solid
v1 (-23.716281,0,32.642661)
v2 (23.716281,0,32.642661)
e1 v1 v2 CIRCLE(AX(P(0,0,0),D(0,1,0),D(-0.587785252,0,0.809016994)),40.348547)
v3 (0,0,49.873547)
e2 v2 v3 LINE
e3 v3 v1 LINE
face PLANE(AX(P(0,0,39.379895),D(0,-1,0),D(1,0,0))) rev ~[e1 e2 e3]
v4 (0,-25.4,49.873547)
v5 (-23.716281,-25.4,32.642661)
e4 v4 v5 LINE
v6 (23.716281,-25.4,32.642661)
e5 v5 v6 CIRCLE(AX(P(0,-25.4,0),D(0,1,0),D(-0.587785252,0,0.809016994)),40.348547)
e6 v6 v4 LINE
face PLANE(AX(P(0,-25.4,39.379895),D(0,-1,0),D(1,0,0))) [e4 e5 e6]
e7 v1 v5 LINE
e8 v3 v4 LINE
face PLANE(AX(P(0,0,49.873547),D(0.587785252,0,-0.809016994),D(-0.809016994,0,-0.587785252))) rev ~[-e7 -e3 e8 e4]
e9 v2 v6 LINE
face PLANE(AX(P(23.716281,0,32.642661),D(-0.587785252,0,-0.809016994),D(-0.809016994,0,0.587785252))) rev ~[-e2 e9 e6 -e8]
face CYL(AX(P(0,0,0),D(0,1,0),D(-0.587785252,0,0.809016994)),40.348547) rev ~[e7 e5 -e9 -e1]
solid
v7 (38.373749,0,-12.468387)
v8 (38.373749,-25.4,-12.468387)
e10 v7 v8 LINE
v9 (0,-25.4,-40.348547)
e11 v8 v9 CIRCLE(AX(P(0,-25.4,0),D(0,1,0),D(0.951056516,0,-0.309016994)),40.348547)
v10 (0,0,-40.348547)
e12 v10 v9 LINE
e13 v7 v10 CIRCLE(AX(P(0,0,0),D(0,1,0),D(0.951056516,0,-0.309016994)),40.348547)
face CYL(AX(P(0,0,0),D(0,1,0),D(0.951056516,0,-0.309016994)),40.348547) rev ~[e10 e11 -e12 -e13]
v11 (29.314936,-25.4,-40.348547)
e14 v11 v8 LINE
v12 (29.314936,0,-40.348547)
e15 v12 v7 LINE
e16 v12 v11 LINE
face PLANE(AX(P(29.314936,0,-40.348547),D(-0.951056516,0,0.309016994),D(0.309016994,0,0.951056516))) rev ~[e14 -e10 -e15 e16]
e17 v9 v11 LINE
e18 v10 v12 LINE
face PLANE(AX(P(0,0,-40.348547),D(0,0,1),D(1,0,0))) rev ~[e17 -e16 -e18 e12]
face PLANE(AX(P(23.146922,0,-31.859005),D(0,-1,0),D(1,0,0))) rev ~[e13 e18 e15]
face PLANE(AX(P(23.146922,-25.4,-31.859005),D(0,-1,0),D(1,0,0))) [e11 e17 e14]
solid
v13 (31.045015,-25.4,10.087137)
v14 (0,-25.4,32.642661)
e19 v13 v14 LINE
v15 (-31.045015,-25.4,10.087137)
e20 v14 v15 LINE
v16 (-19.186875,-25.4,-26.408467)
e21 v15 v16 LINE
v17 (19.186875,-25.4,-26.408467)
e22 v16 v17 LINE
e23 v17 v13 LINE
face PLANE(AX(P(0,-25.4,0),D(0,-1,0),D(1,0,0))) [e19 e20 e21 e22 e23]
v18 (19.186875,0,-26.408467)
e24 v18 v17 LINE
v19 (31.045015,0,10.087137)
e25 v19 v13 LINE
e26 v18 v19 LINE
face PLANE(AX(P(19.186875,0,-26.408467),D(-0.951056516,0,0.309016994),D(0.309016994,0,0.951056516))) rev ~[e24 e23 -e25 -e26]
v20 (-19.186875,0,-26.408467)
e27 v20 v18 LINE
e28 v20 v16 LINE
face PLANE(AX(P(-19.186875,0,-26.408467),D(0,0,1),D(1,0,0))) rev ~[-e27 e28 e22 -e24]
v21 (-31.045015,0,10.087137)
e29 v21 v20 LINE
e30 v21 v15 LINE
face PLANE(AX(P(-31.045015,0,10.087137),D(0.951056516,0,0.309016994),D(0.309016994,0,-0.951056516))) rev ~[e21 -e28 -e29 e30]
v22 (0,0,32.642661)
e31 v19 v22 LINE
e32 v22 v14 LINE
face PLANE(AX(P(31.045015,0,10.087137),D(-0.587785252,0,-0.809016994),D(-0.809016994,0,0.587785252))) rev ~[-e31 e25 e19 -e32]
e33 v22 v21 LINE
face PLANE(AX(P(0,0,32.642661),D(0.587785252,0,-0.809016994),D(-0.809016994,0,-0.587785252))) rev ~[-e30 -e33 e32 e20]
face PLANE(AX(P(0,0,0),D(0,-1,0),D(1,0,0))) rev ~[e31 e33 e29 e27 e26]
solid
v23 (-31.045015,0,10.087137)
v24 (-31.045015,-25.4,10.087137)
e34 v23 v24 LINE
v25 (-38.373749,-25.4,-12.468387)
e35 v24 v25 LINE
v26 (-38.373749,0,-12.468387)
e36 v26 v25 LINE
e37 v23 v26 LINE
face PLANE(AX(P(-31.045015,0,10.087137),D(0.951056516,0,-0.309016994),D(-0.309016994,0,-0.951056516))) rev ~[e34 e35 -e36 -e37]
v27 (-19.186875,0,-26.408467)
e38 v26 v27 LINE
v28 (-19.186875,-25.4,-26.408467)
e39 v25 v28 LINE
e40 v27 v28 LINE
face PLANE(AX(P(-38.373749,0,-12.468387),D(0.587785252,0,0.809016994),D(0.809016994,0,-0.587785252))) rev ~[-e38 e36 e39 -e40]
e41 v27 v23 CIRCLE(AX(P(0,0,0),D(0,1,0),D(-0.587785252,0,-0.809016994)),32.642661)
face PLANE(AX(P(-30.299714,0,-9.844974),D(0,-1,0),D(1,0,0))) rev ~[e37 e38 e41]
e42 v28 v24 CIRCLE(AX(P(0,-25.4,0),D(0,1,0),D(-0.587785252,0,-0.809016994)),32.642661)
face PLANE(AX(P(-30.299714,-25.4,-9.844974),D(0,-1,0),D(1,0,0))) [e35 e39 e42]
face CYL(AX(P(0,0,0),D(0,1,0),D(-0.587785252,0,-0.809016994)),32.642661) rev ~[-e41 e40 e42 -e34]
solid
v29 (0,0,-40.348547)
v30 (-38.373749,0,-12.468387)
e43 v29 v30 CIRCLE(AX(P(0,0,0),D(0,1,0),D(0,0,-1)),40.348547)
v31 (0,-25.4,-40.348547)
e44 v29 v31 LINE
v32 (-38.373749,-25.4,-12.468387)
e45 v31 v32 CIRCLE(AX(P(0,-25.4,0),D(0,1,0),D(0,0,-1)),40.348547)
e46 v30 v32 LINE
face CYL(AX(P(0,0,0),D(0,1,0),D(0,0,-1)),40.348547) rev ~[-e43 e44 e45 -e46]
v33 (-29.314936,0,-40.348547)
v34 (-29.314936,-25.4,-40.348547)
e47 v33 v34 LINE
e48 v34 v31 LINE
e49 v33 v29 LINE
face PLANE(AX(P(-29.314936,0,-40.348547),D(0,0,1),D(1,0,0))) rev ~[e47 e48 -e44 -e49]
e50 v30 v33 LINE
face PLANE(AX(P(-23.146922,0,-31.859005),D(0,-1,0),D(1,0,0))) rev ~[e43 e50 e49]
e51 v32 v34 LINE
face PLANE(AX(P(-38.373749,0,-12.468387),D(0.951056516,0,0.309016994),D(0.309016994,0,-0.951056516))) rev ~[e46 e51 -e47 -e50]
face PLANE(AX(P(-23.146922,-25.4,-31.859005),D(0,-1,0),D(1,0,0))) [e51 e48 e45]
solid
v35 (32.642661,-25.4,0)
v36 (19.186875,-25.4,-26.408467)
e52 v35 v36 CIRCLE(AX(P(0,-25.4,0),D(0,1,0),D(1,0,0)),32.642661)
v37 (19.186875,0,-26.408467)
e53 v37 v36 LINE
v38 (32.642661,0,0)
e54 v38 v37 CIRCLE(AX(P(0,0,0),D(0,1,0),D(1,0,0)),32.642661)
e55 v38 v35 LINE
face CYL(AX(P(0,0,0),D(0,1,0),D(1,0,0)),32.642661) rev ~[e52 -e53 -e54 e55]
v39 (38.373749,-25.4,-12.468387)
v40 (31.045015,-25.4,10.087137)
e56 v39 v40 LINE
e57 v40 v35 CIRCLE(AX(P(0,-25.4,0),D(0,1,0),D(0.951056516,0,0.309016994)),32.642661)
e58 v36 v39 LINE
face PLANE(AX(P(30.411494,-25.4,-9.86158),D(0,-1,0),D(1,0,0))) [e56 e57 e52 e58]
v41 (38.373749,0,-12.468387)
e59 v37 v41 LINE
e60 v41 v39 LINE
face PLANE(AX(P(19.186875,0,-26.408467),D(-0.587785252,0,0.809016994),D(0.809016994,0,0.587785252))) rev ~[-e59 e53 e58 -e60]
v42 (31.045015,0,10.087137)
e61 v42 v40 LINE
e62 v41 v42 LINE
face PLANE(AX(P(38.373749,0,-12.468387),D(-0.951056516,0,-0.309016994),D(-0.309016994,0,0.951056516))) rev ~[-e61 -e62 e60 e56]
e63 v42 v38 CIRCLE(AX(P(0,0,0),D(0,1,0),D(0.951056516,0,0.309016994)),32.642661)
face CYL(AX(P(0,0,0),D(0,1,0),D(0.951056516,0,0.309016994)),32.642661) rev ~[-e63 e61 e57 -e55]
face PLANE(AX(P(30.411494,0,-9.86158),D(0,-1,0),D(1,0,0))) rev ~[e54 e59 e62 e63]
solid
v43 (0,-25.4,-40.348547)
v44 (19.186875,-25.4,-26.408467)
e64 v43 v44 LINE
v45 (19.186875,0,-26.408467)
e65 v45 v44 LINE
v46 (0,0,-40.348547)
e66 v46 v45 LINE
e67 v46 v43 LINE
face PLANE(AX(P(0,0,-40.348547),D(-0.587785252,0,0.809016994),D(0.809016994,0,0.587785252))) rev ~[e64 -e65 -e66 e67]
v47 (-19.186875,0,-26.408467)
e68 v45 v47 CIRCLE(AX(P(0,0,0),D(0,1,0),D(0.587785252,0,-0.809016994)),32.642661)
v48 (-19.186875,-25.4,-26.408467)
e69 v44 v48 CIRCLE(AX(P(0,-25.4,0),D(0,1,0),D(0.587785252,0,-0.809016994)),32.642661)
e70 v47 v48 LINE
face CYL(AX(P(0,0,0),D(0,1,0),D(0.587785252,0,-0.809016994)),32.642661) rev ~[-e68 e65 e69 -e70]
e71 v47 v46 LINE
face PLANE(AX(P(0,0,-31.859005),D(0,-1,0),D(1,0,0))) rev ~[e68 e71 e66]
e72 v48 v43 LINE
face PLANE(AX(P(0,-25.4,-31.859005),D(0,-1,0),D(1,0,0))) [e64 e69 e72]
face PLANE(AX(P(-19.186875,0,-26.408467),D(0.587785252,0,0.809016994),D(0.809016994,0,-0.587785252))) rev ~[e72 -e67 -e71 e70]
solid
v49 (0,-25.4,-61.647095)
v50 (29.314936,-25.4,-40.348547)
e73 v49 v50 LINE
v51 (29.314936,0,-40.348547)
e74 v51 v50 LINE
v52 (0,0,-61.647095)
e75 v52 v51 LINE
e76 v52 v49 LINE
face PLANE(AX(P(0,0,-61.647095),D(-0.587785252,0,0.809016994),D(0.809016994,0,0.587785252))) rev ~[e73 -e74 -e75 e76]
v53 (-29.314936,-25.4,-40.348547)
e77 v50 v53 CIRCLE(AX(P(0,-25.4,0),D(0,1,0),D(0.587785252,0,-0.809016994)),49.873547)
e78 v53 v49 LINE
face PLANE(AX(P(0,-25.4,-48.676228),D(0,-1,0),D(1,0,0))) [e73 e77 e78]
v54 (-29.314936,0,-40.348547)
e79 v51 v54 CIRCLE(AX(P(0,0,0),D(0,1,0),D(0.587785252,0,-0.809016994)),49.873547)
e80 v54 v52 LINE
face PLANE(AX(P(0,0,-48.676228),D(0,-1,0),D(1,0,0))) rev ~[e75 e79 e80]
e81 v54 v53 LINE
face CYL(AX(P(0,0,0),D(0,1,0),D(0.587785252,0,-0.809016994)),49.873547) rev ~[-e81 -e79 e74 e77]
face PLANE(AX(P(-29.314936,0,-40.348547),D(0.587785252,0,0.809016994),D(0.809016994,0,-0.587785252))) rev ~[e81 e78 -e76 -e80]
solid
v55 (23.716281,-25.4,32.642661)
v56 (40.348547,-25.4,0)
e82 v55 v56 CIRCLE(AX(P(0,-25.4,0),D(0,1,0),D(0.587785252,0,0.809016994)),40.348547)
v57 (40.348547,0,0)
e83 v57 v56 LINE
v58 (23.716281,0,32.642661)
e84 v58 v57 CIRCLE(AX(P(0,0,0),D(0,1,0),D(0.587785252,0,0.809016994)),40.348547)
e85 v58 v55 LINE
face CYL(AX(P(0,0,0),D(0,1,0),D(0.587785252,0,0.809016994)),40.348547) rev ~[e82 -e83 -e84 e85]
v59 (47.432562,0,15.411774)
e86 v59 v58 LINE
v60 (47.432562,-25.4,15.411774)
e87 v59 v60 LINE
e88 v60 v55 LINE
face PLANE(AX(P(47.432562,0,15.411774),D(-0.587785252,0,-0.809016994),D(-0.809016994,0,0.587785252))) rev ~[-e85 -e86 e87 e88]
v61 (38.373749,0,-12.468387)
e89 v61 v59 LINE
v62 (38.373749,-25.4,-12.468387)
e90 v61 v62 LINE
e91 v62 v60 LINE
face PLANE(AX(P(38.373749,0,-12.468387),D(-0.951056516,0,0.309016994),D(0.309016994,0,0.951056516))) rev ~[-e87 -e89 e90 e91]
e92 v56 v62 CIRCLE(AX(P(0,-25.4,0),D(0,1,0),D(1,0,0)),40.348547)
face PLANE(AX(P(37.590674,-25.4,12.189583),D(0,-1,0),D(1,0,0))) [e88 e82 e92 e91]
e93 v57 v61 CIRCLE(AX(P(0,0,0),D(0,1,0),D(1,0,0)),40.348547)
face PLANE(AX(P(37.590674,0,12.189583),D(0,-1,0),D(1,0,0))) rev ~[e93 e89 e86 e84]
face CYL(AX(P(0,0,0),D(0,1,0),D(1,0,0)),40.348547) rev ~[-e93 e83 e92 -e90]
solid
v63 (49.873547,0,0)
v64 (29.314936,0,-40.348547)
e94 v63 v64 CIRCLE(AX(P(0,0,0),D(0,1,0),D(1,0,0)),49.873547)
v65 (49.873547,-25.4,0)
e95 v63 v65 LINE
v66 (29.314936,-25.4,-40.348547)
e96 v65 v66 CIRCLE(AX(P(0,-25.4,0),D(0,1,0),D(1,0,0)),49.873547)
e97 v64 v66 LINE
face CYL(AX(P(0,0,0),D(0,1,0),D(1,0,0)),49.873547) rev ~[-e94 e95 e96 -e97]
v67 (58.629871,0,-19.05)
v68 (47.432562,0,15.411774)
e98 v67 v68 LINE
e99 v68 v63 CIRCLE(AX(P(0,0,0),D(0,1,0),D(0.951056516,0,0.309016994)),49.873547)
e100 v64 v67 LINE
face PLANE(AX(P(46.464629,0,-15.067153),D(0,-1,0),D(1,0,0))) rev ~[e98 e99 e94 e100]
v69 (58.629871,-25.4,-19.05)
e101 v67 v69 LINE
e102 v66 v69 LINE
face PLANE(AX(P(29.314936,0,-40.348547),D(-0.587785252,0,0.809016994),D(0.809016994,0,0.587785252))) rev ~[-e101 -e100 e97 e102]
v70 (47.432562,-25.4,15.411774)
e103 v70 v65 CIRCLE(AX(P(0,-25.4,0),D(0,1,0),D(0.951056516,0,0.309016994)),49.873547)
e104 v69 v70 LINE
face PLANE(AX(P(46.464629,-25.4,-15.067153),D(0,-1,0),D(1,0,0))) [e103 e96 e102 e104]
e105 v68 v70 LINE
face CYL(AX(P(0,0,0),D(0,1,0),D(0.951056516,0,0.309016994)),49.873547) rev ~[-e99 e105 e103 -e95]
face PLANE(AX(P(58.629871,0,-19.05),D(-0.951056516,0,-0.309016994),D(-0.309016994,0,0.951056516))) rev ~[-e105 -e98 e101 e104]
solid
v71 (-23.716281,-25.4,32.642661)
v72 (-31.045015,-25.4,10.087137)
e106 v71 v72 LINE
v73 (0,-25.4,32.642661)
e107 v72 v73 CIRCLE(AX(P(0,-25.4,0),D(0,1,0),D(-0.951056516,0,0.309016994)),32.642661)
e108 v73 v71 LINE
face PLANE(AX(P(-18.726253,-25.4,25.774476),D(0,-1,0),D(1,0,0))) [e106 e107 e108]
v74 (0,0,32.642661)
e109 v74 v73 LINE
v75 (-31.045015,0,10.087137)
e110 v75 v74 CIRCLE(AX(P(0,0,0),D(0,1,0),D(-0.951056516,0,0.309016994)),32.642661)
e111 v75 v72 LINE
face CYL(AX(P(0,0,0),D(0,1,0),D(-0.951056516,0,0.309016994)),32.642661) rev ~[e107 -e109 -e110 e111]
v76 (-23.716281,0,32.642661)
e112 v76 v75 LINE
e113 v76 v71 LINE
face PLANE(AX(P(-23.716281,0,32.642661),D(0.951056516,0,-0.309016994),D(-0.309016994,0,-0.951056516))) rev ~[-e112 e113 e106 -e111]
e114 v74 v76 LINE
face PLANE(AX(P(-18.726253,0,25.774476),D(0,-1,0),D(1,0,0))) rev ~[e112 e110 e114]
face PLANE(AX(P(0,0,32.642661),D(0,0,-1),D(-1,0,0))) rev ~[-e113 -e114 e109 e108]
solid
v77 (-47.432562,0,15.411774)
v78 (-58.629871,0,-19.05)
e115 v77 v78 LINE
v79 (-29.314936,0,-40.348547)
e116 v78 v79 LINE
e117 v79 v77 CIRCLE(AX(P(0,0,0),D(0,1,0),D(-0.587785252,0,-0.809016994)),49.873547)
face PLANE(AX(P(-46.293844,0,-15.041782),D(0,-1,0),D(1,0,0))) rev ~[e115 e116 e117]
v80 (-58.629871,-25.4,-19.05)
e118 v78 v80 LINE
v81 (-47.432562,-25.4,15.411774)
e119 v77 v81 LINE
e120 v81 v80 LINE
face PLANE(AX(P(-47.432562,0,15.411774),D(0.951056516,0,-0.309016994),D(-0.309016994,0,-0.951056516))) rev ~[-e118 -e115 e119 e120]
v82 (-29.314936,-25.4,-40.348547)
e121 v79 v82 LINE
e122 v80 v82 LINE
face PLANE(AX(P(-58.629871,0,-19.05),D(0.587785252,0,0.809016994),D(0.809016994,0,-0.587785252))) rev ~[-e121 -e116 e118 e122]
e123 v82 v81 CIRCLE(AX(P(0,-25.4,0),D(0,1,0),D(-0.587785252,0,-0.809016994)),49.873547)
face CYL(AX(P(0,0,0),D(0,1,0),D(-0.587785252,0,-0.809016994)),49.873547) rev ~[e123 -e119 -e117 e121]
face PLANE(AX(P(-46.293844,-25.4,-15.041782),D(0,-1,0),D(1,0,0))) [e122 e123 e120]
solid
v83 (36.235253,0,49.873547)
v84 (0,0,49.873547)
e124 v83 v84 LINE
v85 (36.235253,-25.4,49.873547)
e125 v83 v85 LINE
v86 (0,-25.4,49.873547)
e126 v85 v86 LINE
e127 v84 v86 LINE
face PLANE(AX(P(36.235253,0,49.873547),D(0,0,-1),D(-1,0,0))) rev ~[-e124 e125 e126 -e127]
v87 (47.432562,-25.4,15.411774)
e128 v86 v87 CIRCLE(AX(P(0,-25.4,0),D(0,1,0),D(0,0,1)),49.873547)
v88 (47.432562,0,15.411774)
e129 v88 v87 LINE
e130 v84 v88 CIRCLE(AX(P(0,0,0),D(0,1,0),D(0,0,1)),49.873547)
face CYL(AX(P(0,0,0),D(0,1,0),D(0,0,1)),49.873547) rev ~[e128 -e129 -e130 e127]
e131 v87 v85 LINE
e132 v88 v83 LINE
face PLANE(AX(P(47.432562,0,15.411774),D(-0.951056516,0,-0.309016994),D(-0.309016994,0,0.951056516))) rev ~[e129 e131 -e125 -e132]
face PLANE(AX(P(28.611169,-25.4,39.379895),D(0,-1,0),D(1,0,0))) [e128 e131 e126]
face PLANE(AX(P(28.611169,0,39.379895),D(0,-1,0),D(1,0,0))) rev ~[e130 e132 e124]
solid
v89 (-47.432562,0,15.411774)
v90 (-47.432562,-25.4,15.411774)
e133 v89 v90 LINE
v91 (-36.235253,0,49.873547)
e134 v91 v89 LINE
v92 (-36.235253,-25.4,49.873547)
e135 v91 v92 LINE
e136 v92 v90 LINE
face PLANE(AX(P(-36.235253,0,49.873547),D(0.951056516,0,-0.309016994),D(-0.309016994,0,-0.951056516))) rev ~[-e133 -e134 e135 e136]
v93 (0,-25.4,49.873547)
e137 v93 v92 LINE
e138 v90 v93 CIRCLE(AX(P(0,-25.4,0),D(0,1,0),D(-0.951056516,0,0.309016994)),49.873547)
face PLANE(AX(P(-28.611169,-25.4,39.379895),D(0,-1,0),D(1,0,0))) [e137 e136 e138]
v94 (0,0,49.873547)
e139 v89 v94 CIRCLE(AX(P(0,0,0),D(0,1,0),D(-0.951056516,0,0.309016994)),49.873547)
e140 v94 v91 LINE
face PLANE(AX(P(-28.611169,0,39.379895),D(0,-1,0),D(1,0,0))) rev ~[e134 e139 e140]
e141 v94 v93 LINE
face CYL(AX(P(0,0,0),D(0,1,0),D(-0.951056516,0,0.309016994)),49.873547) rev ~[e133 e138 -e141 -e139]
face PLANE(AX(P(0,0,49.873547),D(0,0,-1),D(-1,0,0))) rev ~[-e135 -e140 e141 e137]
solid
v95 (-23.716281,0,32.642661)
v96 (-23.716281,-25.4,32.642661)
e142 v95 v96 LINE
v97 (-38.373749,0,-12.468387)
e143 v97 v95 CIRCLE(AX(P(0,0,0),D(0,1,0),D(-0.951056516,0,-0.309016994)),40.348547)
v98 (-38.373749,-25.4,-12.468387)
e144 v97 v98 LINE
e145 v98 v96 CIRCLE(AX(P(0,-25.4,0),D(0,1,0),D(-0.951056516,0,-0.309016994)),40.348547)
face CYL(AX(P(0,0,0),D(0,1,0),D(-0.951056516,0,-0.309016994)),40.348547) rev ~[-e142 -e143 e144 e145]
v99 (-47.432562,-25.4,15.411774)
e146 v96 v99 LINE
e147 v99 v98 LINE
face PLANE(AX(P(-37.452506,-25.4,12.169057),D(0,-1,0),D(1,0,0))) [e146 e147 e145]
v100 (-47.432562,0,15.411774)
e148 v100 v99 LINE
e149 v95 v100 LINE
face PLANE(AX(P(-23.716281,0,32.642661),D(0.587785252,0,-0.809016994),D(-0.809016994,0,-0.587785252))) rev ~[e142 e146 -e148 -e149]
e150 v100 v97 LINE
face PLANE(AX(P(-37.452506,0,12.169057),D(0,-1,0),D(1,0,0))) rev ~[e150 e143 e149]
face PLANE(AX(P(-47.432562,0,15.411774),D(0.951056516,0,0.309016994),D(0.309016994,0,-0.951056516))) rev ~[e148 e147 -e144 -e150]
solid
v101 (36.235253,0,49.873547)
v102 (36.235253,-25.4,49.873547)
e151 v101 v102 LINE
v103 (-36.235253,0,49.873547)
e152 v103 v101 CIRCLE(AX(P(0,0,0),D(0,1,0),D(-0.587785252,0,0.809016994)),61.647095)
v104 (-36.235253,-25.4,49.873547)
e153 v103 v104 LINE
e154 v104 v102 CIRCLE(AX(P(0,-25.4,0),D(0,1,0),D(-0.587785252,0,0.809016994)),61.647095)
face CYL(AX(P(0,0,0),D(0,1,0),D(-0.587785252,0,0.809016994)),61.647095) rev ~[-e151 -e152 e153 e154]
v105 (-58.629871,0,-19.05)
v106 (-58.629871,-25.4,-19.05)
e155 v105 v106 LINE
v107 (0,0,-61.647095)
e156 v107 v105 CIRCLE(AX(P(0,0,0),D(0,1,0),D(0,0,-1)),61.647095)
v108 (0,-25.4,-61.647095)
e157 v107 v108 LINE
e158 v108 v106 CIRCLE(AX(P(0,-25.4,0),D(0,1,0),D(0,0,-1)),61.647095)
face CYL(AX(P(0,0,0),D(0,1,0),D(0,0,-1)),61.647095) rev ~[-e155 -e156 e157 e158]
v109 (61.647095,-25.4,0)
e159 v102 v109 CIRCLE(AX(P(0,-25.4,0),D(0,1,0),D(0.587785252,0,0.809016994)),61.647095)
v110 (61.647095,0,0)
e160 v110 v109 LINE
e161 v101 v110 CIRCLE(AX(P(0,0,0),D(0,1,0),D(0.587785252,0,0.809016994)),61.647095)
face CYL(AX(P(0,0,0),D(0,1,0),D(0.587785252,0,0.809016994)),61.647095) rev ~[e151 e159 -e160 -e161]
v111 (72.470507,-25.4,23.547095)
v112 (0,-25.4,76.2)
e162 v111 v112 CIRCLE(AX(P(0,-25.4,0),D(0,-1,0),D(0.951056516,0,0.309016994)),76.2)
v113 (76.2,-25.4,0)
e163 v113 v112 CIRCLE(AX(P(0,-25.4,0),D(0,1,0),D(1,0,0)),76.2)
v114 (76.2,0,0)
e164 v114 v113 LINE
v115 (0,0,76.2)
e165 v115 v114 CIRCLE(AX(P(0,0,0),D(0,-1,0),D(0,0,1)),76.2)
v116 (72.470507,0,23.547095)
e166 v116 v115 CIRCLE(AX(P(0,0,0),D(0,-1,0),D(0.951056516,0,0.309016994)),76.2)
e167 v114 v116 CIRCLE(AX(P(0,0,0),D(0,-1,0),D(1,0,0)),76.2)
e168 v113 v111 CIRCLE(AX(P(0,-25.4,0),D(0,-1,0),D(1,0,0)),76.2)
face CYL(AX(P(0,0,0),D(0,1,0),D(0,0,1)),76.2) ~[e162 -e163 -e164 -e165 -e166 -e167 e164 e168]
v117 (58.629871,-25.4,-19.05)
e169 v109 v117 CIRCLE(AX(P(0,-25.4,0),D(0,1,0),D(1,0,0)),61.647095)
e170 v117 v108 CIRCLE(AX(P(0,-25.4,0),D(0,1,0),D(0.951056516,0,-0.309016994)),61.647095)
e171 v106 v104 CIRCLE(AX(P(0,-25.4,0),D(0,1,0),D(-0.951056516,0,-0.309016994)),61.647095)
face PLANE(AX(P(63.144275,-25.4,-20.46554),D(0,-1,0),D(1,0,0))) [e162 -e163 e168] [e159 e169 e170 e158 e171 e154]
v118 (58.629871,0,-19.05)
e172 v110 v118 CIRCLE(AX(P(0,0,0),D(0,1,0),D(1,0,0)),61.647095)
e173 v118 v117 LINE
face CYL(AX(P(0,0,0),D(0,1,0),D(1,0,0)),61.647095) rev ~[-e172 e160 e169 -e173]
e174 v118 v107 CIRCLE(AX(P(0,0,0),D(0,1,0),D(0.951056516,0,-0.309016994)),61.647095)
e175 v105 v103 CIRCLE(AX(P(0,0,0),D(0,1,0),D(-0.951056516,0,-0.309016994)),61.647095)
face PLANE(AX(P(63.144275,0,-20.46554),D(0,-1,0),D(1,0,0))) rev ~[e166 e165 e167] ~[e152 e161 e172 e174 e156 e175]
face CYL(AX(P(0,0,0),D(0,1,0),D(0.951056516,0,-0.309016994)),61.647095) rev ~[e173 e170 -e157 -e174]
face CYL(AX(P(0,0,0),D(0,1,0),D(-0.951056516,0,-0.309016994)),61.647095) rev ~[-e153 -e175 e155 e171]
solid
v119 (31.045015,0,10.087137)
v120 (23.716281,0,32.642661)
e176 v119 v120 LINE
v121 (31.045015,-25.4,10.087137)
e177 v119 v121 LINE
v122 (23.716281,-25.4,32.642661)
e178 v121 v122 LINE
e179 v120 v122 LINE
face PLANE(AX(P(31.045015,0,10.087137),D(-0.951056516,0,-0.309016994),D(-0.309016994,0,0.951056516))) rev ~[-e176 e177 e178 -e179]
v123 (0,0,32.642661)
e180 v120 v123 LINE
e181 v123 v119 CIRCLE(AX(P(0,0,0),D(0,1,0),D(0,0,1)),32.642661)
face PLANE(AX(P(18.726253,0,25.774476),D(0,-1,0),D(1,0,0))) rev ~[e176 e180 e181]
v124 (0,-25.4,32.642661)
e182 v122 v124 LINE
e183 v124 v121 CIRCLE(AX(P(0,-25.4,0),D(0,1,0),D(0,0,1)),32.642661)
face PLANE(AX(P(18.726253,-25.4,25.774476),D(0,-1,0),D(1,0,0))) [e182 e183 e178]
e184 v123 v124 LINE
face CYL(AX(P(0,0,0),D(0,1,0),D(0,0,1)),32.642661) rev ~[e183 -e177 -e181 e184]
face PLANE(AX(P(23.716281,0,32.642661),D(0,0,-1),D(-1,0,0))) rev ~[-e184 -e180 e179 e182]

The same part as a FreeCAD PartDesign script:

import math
import FreeCAD as App
import Part
import Sketcher
Q = App.Units.Quantity

doc = App.newDocument("Part")
body = doc.addObject("PartDesign::Body", "Body")

# Sketch on XZ plane
sketch1 = doc.addObject("Sketcher::SketchObject", "Sketch")
body.addObject(sketch1)
sketch1.AttachmentSupport = (doc.XZ_Plane, [""])
sketch1.MapMode = "FlatFace"
sketch1.addGeometry(Part.ArcOfCircle(Part.Circle(App.Vector(0, 0, 0), App.Vector(0, 0, 1), 76), math.radians(90), math.radians(234)), False)
sketch1.addGeometry(Part.ArcOfCircle(Part.Circle(App.Vector(0, 0, 0), App.Vector(0, 0, 1), 76), math.radians(-126), math.radians(0)), False)
sketch1.addGeometry(Part.ArcOfCircle(Part.Circle(App.Vector(0, 0, 0), App.Vector(0, 0, 1), 76), math.radians(0), math.radians(18)), False)
sketch1.addGeometry(Part.ArcOfCircle(Part.Circle(App.Vector(0, 0, 0), App.Vector(0, 0, 1), 76), math.radians(18), math.radians(90)), False)
sketch1.addGeometry(Part.ArcOfCircle(Part.Circle(App.Vector(0, 0, 0), App.Vector(0, 0, 1), 62), math.radians(-162), math.radians(-90)), False)
sketch1.addGeometry(Part.ArcOfCircle(Part.Circle(App.Vector(0, 0, 0), App.Vector(0, 0, 1), 62), math.radians(126), math.radians(198)), False)
sketch1.addGeometry(Part.ArcOfCircle(Part.Circle(App.Vector(0, 0, 0), App.Vector(0, 0, 1), 62), math.radians(54), math.radians(126)), False)
sketch1.addGeometry(Part.ArcOfCircle(Part.Circle(App.Vector(0, 0, 0), App.Vector(0, 0, 1), 62), math.radians(0), math.radians(54)), False)
sketch1.addGeometry(Part.ArcOfCircle(Part.Circle(App.Vector(0, 0, 0), App.Vector(0, 0, 1), 62), math.radians(-18), math.radians(0)), False)
sketch1.addGeometry(Part.ArcOfCircle(Part.Circle(App.Vector(0, 0, 0), App.Vector(0, 0, 1), 62), math.radians(-90), math.radians(-18)), False)
sketch1.addConstraint(Sketcher.Constraint("Tangent", 0, 2, 1, 1))
sketch1.addConstraint(Sketcher.Constraint("Tangent", 1, 2, 2, 1))
sketch1.addConstraint(Sketcher.Constraint("Tangent", 2, 2, 3, 1))
sketch1.addConstraint(Sketcher.Constraint("Tangent", 3, 2, 0, 1))
sketch1.addConstraint(Sketcher.Constraint("Tangent", 4, 1, 5, 2))
sketch1.addConstraint(Sketcher.Constraint("Tangent", 5, 1, 6, 2))
sketch1.addConstraint(Sketcher.Constraint("Tangent", 6, 1, 7, 2))
sketch1.addConstraint(Sketcher.Constraint("Tangent", 7, 1, 8, 2))
sketch1.addConstraint(Sketcher.Constraint("Tangent", 8, 1, 9, 2))
sketch1.addConstraint(Sketcher.Constraint("Tangent", 9, 1, 4, 2))
sketch1.addConstraint(Sketcher.Constraint("Coincident", 0, 3, -1, 1))
sketch1.addConstraint(Sketcher.Constraint("Coincident", 4, 3, -1, 1))
sketch1.addConstraint(Sketcher.Constraint("Coincident", 6, 3, -1, 1))
sketch1.addConstraint(Sketcher.Constraint("Equal", 0, 1))
sketch1.addConstraint(Sketcher.Constraint("Equal", 6, 7))
sketch1.addConstraint(Sketcher.Constraint("PointOnObject", 1, 2, -1))
sketch1.addConstraint(Sketcher.Constraint("PointOnObject", 3, 2, -2))
sketch1.addConstraint(Sketcher.Constraint("PointOnObject", 7, 1, -1))
sketch1.addConstraint(Sketcher.Constraint("PointOnObject", 9, 1, -2))
sketch1.addConstraint(Sketcher.Constraint("Horizontal", 5, 1, 6, 1))
sketch1.addConstraint(Sketcher.Constraint("Horizontal", 4, 1, 8, 1))
sketch1.addConstraint(Sketcher.Constraint("Horizontal", 0, 2, 9, 1))
sketch1.addConstraint(Sketcher.Constraint("Radius", 0, Q("3 in")))
sketch1.addConstraint(Sketcher.Constraint("DistanceY", 4, 1, -1, 1, Q("0.75 in")))
sketch1.addConstraint(Sketcher.Constraint("Radius", 4, 61.647095))
sketch1.addConstraint(Sketcher.Constraint("DistanceX", 7, 1, 2, 2, 10.823412))
sketch1.addConstraint(Sketcher.Constraint("DistanceX", 6, 1, 7, 1, 25.411842))
pad1 = doc.addObject("PartDesign::Pad", "Pad")
body.addObject(pad1)
pad1.Profile = sketch1
pad1.Length = Q("1 in")
body2 = doc.addObject("PartDesign::Body", "Body001")

# Sketch on XZ plane
sketch2 = doc.addObject("Sketcher::SketchObject", "Sketch001")
body2.addObject(sketch2)
sketch2.AttachmentSupport = (doc.getObject("XZ_Plane001"), [""])
sketch2.MapMode = "FlatFace"
sketch2.addGeometry(Part.LineSegment(App.Vector(31, 10, 0), App.Vector(0, 33, 0)), False)
sketch2.addGeometry(Part.LineSegment(App.Vector(0, 33, 0), App.Vector(-31, 10, 0)), False)
sketch2.addGeometry(Part.LineSegment(App.Vector(-31, 10, 0), App.Vector(-19, -26, 0)), False)
sketch2.addGeometry(Part.LineSegment(App.Vector(-19, -26, 0), App.Vector(19, -26, 0)), False)
sketch2.addGeometry(Part.LineSegment(App.Vector(19, -26, 0), App.Vector(31, 10, 0)), False)
sketch2.addConstraint(Sketcher.Constraint("Coincident", 0, 2, 1, 1))
sketch2.addConstraint(Sketcher.Constraint("Coincident", 1, 2, 2, 1))
sketch2.addConstraint(Sketcher.Constraint("Coincident", 2, 2, 3, 1))
sketch2.addConstraint(Sketcher.Constraint("Coincident", 3, 2, 4, 1))
sketch2.addConstraint(Sketcher.Constraint("Coincident", 4, 2, 0, 1))
sketch2.addConstraint(Sketcher.Constraint("Horizontal", 3))
sketch2.addConstraint(Sketcher.Constraint("Symmetric", 1, 2, 4, 2, -2))
sketch2.addConstraint(Sketcher.Constraint("PointOnObject", 0, 2, -2))
sketch2.addConstraint(Sketcher.Constraint("Equal", 1, 2))
sketch2.addConstraint(Sketcher.Constraint("Equal", 2, 4))
sketch2.addConstraint(Sketcher.Constraint("Angle", 0, Q("144 deg")))
sketch2.addConstraint(Sketcher.Constraint("Angle", 2, Q("-72 deg")))
sketch2.addConstraint(Sketcher.Constraint("DistanceX", 3, 1, 3, 2, 38.373749))
sketch2.addConstraint(Sketcher.Constraint("DistanceY", -1, 1, 0, 2, 32.642661))
pad2 = doc.addObject("PartDesign::Pad", "Pad001")
body2.addObject(pad2)
pad2.Profile = sketch2
pad2.Length = Q("1 in")
body3 = doc.addObject("PartDesign::Body", "Body002")

# Sketch on XZ plane
sketch3 = doc.addObject("Sketcher::SketchObject", "Sketch002")
body3.addObject(sketch3)
sketch3.AttachmentSupport = (doc.getObject("XZ_Plane002"), [""])
sketch3.MapMode = "FlatFace"
sketch3.addGeometry(Part.LineSegment(App.Vector(-31, 10, 0), App.Vector(-38, -12, 0)), False)
sketch3.addGeometry(Part.LineSegment(App.Vector(-38, -12, 0), App.Vector(-19, -26, 0)), False)
sketch3.addGeometry(Part.ArcOfCircle(Part.Circle(App.Vector(0, 0, 0), App.Vector(0, 0, 1), 33), math.radians(162), math.radians(234)), False)
sketch3.addConstraint(Sketcher.Constraint("Coincident", 0, 2, 1, 1))
sketch3.addConstraint(Sketcher.Constraint("Tangent", 1, 2, 2, 2))
sketch3.addConstraint(Sketcher.Constraint("Tangent", 2, 1, 0, 1))
sketch3.addConstraint(Sketcher.Constraint("Coincident", 2, 3, -1, 1))
sketch3.addConstraint(Sketcher.Constraint("Angle", 0, Q("-108 deg")))
sketch3.addConstraint(Sketcher.Constraint("Angle", 1, Q("-36 deg")))
sketch3.addConstraint(Sketcher.Constraint("Radius", 2, 32.642661))
pad3 = doc.addObject("PartDesign::Pad", "Pad002")
body3.addObject(pad3)
pad3.Profile = sketch3
pad3.Length = Q("1 in")
body4 = doc.addObject("PartDesign::Body", "Body003")

# Sketch on XZ plane
sketch4 = doc.addObject("Sketcher::SketchObject", "Sketch003")
body4.addObject(sketch4)
sketch4.AttachmentSupport = (doc.getObject("XZ_Plane003"), [""])
sketch4.MapMode = "FlatFace"
sketch4.addGeometry(Part.LineSegment(App.Vector(-19, -26, 0), App.Vector(0, -40, 0)), False)
sketch4.addGeometry(Part.LineSegment(App.Vector(0, -40, 0), App.Vector(19, -26, 0)), False)
sketch4.addGeometry(Part.ArcOfCircle(Part.Circle(App.Vector(0, 0, 0), App.Vector(0, 0, 1), 33), math.radians(-126), math.radians(-54)), False)
sketch4.addConstraint(Sketcher.Constraint("Coincident", 0, 2, 1, 1))
sketch4.addConstraint(Sketcher.Constraint("Tangent", 1, 2, 2, 2))
sketch4.addConstraint(Sketcher.Constraint("Tangent", 2, 1, 0, 1))
sketch4.addConstraint(Sketcher.Constraint("Coincident", 2, 3, -1, 1))
sketch4.addConstraint(Sketcher.Constraint("PointOnObject", 0, 2, -2))
sketch4.addConstraint(Sketcher.Constraint("Angle", 0, Q("-36 deg")))
sketch4.addConstraint(Sketcher.Constraint("Radius", 2, 32.642661))
pad4 = doc.addObject("PartDesign::Pad", "Pad003")
body4.addObject(pad4)
pad4.Profile = sketch4
pad4.Length = Q("1 in")
body5 = doc.addObject("PartDesign::Body", "Body004")

# Sketch on XZ plane
sketch5 = doc.addObject("Sketcher::SketchObject", "Sketch004")
body5.addObject(sketch5)
sketch5.AttachmentSupport = (doc.getObject("XZ_Plane004"), [""])
sketch5.MapMode = "FlatFace"
sketch5.addGeometry(Part.LineSegment(App.Vector(19, -26, 0), App.Vector(38, -12, 0)), False)
sketch5.addGeometry(Part.LineSegment(App.Vector(38, -12, 0), App.Vector(31, 10, 0)), False)
sketch5.addGeometry(Part.ArcOfCircle(Part.Circle(App.Vector(0, 0, 0), App.Vector(0, 0, 1), 33), math.radians(0), math.radians(18)), False)
sketch5.addGeometry(Part.ArcOfCircle(Part.Circle(App.Vector(0, 0, 0), App.Vector(0, 0, 1), 33), math.radians(-54), math.radians(0)), False)
sketch5.addConstraint(Sketcher.Constraint("Coincident", 0, 2, 1, 1))
sketch5.addConstraint(Sketcher.Constraint("Tangent", 1, 2, 2, 2))
sketch5.addConstraint(Sketcher.Constraint("Tangent", 2, 1, 3, 2))
sketch5.addConstraint(Sketcher.Constraint("Tangent", 3, 1, 0, 1))
sketch5.addConstraint(Sketcher.Constraint("Coincident", 2, 3, -1, 1))
sketch5.addConstraint(Sketcher.Constraint("Equal", 2, 3))
sketch5.addConstraint(Sketcher.Constraint("PointOnObject", 2, 1, -1))
sketch5.addConstraint(Sketcher.Constraint("Angle", 0, Q("36 deg")))
sketch5.addConstraint(Sketcher.Constraint("Angle", 1, Q("108 deg")))
sketch5.addConstraint(Sketcher.Constraint("Radius", 2, 32.642661))
pad5 = doc.addObject("PartDesign::Pad", "Pad004")
body5.addObject(pad5)
pad5.Profile = sketch5
pad5.Length = Q("1 in")
body6 = doc.addObject("PartDesign::Body", "Body005")

# Sketch on XZ plane
sketch6 = doc.addObject("Sketcher::SketchObject", "Sketch005")
body6.addObject(sketch6)
sketch6.AttachmentSupport = (doc.getObject("XZ_Plane005"), [""])
sketch6.MapMode = "FlatFace"
sketch6.addGeometry(Part.LineSegment(App.Vector(31, 10, 0), App.Vector(24, 33, 0)), False)
sketch6.addGeometry(Part.LineSegment(App.Vector(24, 33, 0), App.Vector(0, 33, 0)), False)
sketch6.addGeometry(Part.ArcOfCircle(Part.Circle(App.Vector(0, 0, 0), App.Vector(0, 0, 1), 33), math.radians(18), math.radians(90)), False)
sketch6.addConstraint(Sketcher.Constraint("Coincident", 0, 2, 1, 1))
sketch6.addConstraint(Sketcher.Constraint("Tangent", 1, 2, 2, 2))
sketch6.addConstraint(Sketcher.Constraint("Tangent", 2, 1, 0, 1))
sketch6.addConstraint(Sketcher.Constraint("Horizontal", 1))
sketch6.addConstraint(Sketcher.Constraint("Coincident", 2, 3, -1, 1))
sketch6.addConstraint(Sketcher.Constraint("Angle", 0, Q("108 deg")))
sketch6.addConstraint(Sketcher.Constraint("Radius", 2, 32.642661))
pad6 = doc.addObject("PartDesign::Pad", "Pad005")
body6.addObject(pad6)
pad6.Profile = sketch6
pad6.Length = Q("1 in")
body7 = doc.addObject("PartDesign::Body", "Body006")

# Sketch on XZ plane
sketch7 = doc.addObject("Sketcher::SketchObject", "Sketch006")
body7.addObject(sketch7)
sketch7.AttachmentSupport = (doc.getObject("XZ_Plane006"), [""])
sketch7.MapMode = "FlatFace"
sketch7.addGeometry(Part.LineSegment(App.Vector(0, 33, 0), App.Vector(-24, 33, 0)), False)
sketch7.addGeometry(Part.LineSegment(App.Vector(-24, 33, 0), App.Vector(-31, 10, 0)), False)
sketch7.addGeometry(Part.ArcOfCircle(Part.Circle(App.Vector(0, 0, 0), App.Vector(0, 0, 1), 33), math.radians(90), math.radians(162)), False)
sketch7.addConstraint(Sketcher.Constraint("Coincident", 0, 2, 1, 1))
sketch7.addConstraint(Sketcher.Constraint("Tangent", 1, 2, 2, 2))
sketch7.addConstraint(Sketcher.Constraint("Tangent", 2, 1, 0, 1))
sketch7.addConstraint(Sketcher.Constraint("Horizontal", 0))
sketch7.addConstraint(Sketcher.Constraint("Coincident", 2, 3, -1, 1))
sketch7.addConstraint(Sketcher.Constraint("Angle", 1, Q("-108 deg")))
sketch7.addConstraint(Sketcher.Constraint("Radius", 2, 32.642661))
pad7 = doc.addObject("PartDesign::Pad", "Pad006")
body7.addObject(pad7)
pad7.Profile = sketch7
pad7.Length = Q("1 in")
body8 = doc.addObject("PartDesign::Body", "Body007")

# Sketch on XZ plane
sketch8 = doc.addObject("Sketcher::SketchObject", "Sketch007")
body8.addObject(sketch8)
sketch8.AttachmentSupport = (doc.getObject("XZ_Plane007"), [""])
sketch8.MapMode = "FlatFace"
sketch8.addGeometry(Part.LineSegment(App.Vector(-24, 33, 0), App.Vector(-47, 15, 0)), False)
sketch8.addGeometry(Part.LineSegment(App.Vector(-47, 15, 0), App.Vector(-38, -12, 0)), False)
sketch8.addGeometry(Part.ArcOfCircle(Part.Circle(App.Vector(0, 0, 0), App.Vector(0, 0, 1), 40), math.radians(126), math.radians(198)), False)
sketch8.addConstraint(Sketcher.Constraint("Coincident", 0, 2, 1, 1))
sketch8.addConstraint(Sketcher.Constraint("Tangent", 1, 2, 2, 2))
sketch8.addConstraint(Sketcher.Constraint("Tangent", 2, 1, 0, 1))
sketch8.addConstraint(Sketcher.Constraint("Coincident", 2, 3, -1, 1))
sketch8.addConstraint(Sketcher.Constraint("Angle", 0, Q("-144 deg")))
sketch8.addConstraint(Sketcher.Constraint("Angle", 1, Q("-72 deg")))
sketch8.addConstraint(Sketcher.Constraint("Radius", 2, 40.348547))
pad8 = doc.addObject("PartDesign::Pad", "Pad007")
body8.addObject(pad8)
pad8.Profile = sketch8
pad8.Length = Q("1 in")
body9 = doc.addObject("PartDesign::Body", "Body008")

# Sketch on XZ plane
sketch9 = doc.addObject("Sketcher::SketchObject", "Sketch008")
body9.addObject(sketch9)
sketch9.AttachmentSupport = (doc.getObject("XZ_Plane008"), [""])
sketch9.MapMode = "FlatFace"
sketch9.addGeometry(Part.LineSegment(App.Vector(-38, -12, 0), App.Vector(-29, -40, 0)), False)
sketch9.addGeometry(Part.LineSegment(App.Vector(-29, -40, 0), App.Vector(0, -40, 0)), False)
sketch9.addGeometry(Part.ArcOfCircle(Part.Circle(App.Vector(0, 0, 0), App.Vector(0, 0, 1), 40), math.radians(-162), math.radians(-90)), False)
sketch9.addConstraint(Sketcher.Constraint("Coincident", 0, 2, 1, 1))
sketch9.addConstraint(Sketcher.Constraint("Tangent", 1, 2, 2, 2))
sketch9.addConstraint(Sketcher.Constraint("Tangent", 2, 1, 0, 1))
sketch9.addConstraint(Sketcher.Constraint("Horizontal", 1))
sketch9.addConstraint(Sketcher.Constraint("Coincident", 2, 3, -1, 1))
sketch9.addConstraint(Sketcher.Constraint("Angle", 0, Q("-72 deg")))
sketch9.addConstraint(Sketcher.Constraint("Radius", 2, 40.348547))
pad9 = doc.addObject("PartDesign::Pad", "Pad008")
body9.addObject(pad9)
pad9.Profile = sketch9
pad9.Length = Q("1 in")
body10 = doc.addObject("PartDesign::Body", "Body009")

# Sketch on XZ plane
sketch10 = doc.addObject("Sketcher::SketchObject", "Sketch009")
body10.addObject(sketch10)
sketch10.AttachmentSupport = (doc.getObject("XZ_Plane009"), [""])
sketch10.MapMode = "FlatFace"
sketch10.addGeometry(Part.LineSegment(App.Vector(0, -40, 0), App.Vector(29, -40, 0)), False)
sketch10.addGeometry(Part.LineSegment(App.Vector(29, -40, 0), App.Vector(38, -12, 0)), False)
sketch10.addGeometry(Part.ArcOfCircle(Part.Circle(App.Vector(0, 0, 0), App.Vector(0, 0, 1), 40), math.radians(-90), math.radians(-18)), False)
sketch10.addConstraint(Sketcher.Constraint("Coincident", 0, 2, 1, 1))
sketch10.addConstraint(Sketcher.Constraint("Tangent", 1, 2, 2, 2))
sketch10.addConstraint(Sketcher.Constraint("Tangent", 2, 1, 0, 1))
sketch10.addConstraint(Sketcher.Constraint("Horizontal", 0))
sketch10.addConstraint(Sketcher.Constraint("Coincident", 2, 3, -1, 1))
sketch10.addConstraint(Sketcher.Constraint("Angle", 1, Q("72 deg")))
sketch10.addConstraint(Sketcher.Constraint("Radius", 2, 40.348547))
pad10 = doc.addObject("PartDesign::Pad", "Pad009")
body10.addObject(pad10)
pad10.Profile = sketch10
pad10.Length = Q("1 in")
body11 = doc.addObject("PartDesign::Body", "Body010")

# Sketch on XZ plane
sketch11 = doc.addObject("Sketcher::SketchObject", "Sketch010")
body11.addObject(sketch11)
sketch11.AttachmentSupport = (doc.getObject("XZ_Plane010"), [""])
sketch11.MapMode = "FlatFace"
sketch11.addGeometry(Part.LineSegment(App.Vector(38, -12, 0), App.Vector(47, 15, 0)), False)
sketch11.addGeometry(Part.LineSegment(App.Vector(47, 15, 0), App.Vector(24, 33, 0)), False)
sketch11.addGeometry(Part.ArcOfCircle(Part.Circle(App.Vector(0, 0, 0), App.Vector(0, 0, 1), 40), math.radians(0), math.radians(54)), False)
sketch11.addGeometry(Part.ArcOfCircle(Part.Circle(App.Vector(0, 0, 0), App.Vector(0, 0, 1), 40), math.radians(-18), math.radians(0)), False)
sketch11.addConstraint(Sketcher.Constraint("Coincident", 0, 2, 1, 1))
sketch11.addConstraint(Sketcher.Constraint("Tangent", 1, 2, 2, 2))
sketch11.addConstraint(Sketcher.Constraint("Tangent", 2, 1, 3, 2))
sketch11.addConstraint(Sketcher.Constraint("Tangent", 3, 1, 0, 1))
sketch11.addConstraint(Sketcher.Constraint("Coincident", 2, 3, -1, 1))
sketch11.addConstraint(Sketcher.Constraint("Equal", 2, 3))
sketch11.addConstraint(Sketcher.Constraint("PointOnObject", 2, 1, -1))
sketch11.addConstraint(Sketcher.Constraint("Angle", 0, Q("72 deg")))
sketch11.addConstraint(Sketcher.Constraint("Angle", 1, Q("144 deg")))
sketch11.addConstraint(Sketcher.Constraint("Radius", 2, 40.348547))
pad11 = doc.addObject("PartDesign::Pad", "Pad010")
body11.addObject(pad11)
pad11.Profile = sketch11
pad11.Length = Q("1 in")
body12 = doc.addObject("PartDesign::Body", "Body011")

# Sketch on XZ plane
sketch12 = doc.addObject("Sketcher::SketchObject", "Sketch011")
body12.addObject(sketch12)
sketch12.AttachmentSupport = (doc.getObject("XZ_Plane011"), [""])
sketch12.MapMode = "FlatFace"
sketch12.addGeometry(Part.LineSegment(App.Vector(24, 33, 0), App.Vector(0, 50, 0)), False)
sketch12.addGeometry(Part.LineSegment(App.Vector(0, 50, 0), App.Vector(-24, 33, 0)), False)
sketch12.addGeometry(Part.ArcOfCircle(Part.Circle(App.Vector(0, 0, 0), App.Vector(0, 0, 1), 40), math.radians(54), math.radians(126)), False)
sketch12.addConstraint(Sketcher.Constraint("Coincident", 0, 2, 1, 1))
sketch12.addConstraint(Sketcher.Constraint("Tangent", 1, 2, 2, 2))
sketch12.addConstraint(Sketcher.Constraint("Tangent", 2, 1, 0, 1))
sketch12.addConstraint(Sketcher.Constraint("Coincident", 2, 3, -1, 1))
sketch12.addConstraint(Sketcher.Constraint("PointOnObject", 0, 2, -2))
sketch12.addConstraint(Sketcher.Constraint("Angle", 0, Q("144 deg")))
sketch12.addConstraint(Sketcher.Constraint("Radius", 2, 40.348547))
pad12 = doc.addObject("PartDesign::Pad", "Pad011")
body12.addObject(pad12)
pad12.Profile = sketch12
pad12.Length = Q("1 in")
body13 = doc.addObject("PartDesign::Body", "Body012")

# Sketch on XZ plane
sketch13 = doc.addObject("Sketcher::SketchObject", "Sketch012")
body13.addObject(sketch13)
sketch13.AttachmentSupport = (doc.getObject("XZ_Plane012"), [""])
sketch13.MapMode = "FlatFace"
sketch13.addGeometry(Part.LineSegment(App.Vector(0, 50, 0), App.Vector(-36, 50, 0)), False)
sketch13.addGeometry(Part.LineSegment(App.Vector(-36, 50, 0), App.Vector(-47, 15, 0)), False)
sketch13.addGeometry(Part.ArcOfCircle(Part.Circle(App.Vector(0, 0, 0), App.Vector(0, 0, 1), 50), math.radians(90), math.radians(162)), False)
sketch13.addConstraint(Sketcher.Constraint("Coincident", 0, 2, 1, 1))
sketch13.addConstraint(Sketcher.Constraint("Tangent", 1, 2, 2, 2))
sketch13.addConstraint(Sketcher.Constraint("Tangent", 2, 1, 0, 1))
sketch13.addConstraint(Sketcher.Constraint("Horizontal", 0))
sketch13.addConstraint(Sketcher.Constraint("Coincident", 2, 3, -1, 1))
sketch13.addConstraint(Sketcher.Constraint("Angle", 1, Q("-108 deg")))
sketch13.addConstraint(Sketcher.Constraint("Radius", 2, 49.873547))
pad13 = doc.addObject("PartDesign::Pad", "Pad012")
body13.addObject(pad13)
pad13.Profile = sketch13
pad13.Length = Q("1 in")
body14 = doc.addObject("PartDesign::Body", "Body013")

# Sketch on XZ plane
sketch14 = doc.addObject("Sketcher::SketchObject", "Sketch013")
body14.addObject(sketch14)
sketch14.AttachmentSupport = (doc.getObject("XZ_Plane013"), [""])
sketch14.MapMode = "FlatFace"
sketch14.addGeometry(Part.LineSegment(App.Vector(-47, 15, 0), App.Vector(-59, -19, 0)), False)
sketch14.addGeometry(Part.LineSegment(App.Vector(-59, -19, 0), App.Vector(-29, -40, 0)), False)
sketch14.addGeometry(Part.ArcOfCircle(Part.Circle(App.Vector(0, 0, 0), App.Vector(0, 0, 1), 50), math.radians(162), math.radians(234)), False)
sketch14.addConstraint(Sketcher.Constraint("Coincident", 0, 2, 1, 1))
sketch14.addConstraint(Sketcher.Constraint("Tangent", 1, 2, 2, 2))
sketch14.addConstraint(Sketcher.Constraint("Tangent", 2, 1, 0, 1))
sketch14.addConstraint(Sketcher.Constraint("Coincident", 2, 3, -1, 1))
sketch14.addConstraint(Sketcher.Constraint("Angle", 0, Q("-108 deg")))
sketch14.addConstraint(Sketcher.Constraint("Angle", 1, Q("-36 deg")))
sketch14.addConstraint(Sketcher.Constraint("DistanceY", 0, 2, -1, 1, Q("0.75 in")))
pad14 = doc.addObject("PartDesign::Pad", "Pad013")
body14.addObject(pad14)
pad14.Profile = sketch14
pad14.Length = Q("1 in")
body15 = doc.addObject("PartDesign::Body", "Body014")

# Sketch on XZ plane
sketch15 = doc.addObject("Sketcher::SketchObject", "Sketch014")
body15.addObject(sketch15)
sketch15.AttachmentSupport = (doc.getObject("XZ_Plane014"), [""])
sketch15.MapMode = "FlatFace"
sketch15.addGeometry(Part.LineSegment(App.Vector(-29, -40, 0), App.Vector(0, -62, 0)), False)
sketch15.addGeometry(Part.LineSegment(App.Vector(0, -62, 0), App.Vector(29, -40, 0)), False)
sketch15.addGeometry(Part.ArcOfCircle(Part.Circle(App.Vector(0, 0, 0), App.Vector(0, 0, 1), 50), math.radians(-126), math.radians(-54)), False)
sketch15.addConstraint(Sketcher.Constraint("Coincident", 0, 2, 1, 1))
sketch15.addConstraint(Sketcher.Constraint("Tangent", 1, 2, 2, 2))
sketch15.addConstraint(Sketcher.Constraint("Tangent", 2, 1, 0, 1))
sketch15.addConstraint(Sketcher.Constraint("Coincident", 2, 3, -1, 1))
sketch15.addConstraint(Sketcher.Constraint("PointOnObject", 0, 2, -2))
sketch15.addConstraint(Sketcher.Constraint("Angle", 0, Q("-36 deg")))
sketch15.addConstraint(Sketcher.Constraint("Radius", 2, 49.873547))
pad15 = doc.addObject("PartDesign::Pad", "Pad014")
body15.addObject(pad15)
pad15.Profile = sketch15
pad15.Length = Q("1 in")
body16 = doc.addObject("PartDesign::Body", "Body015")

# Sketch on XZ plane
sketch16 = doc.addObject("Sketcher::SketchObject", "Sketch015")
body16.addObject(sketch16)
sketch16.AttachmentSupport = (doc.getObject("XZ_Plane015"), [""])
sketch16.MapMode = "FlatFace"
sketch16.addGeometry(Part.LineSegment(App.Vector(29, -40, 0), App.Vector(59, -19, 0)), False)
sketch16.addGeometry(Part.LineSegment(App.Vector(59, -19, 0), App.Vector(47, 15, 0)), False)
sketch16.addGeometry(Part.ArcOfCircle(Part.Circle(App.Vector(0, 0, 0), App.Vector(0, 0, 1), 50), math.radians(0), math.radians(18)), False)
sketch16.addGeometry(Part.ArcOfCircle(Part.Circle(App.Vector(0, 0, 0), App.Vector(0, 0, 1), 50), math.radians(-54), math.radians(0)), False)
sketch16.addConstraint(Sketcher.Constraint("Coincident", 0, 2, 1, 1))
sketch16.addConstraint(Sketcher.Constraint("Tangent", 1, 2, 2, 2))
sketch16.addConstraint(Sketcher.Constraint("Tangent", 2, 1, 3, 2))
sketch16.addConstraint(Sketcher.Constraint("Tangent", 3, 1, 0, 1))
sketch16.addConstraint(Sketcher.Constraint("Coincident", 2, 3, -1, 1))
sketch16.addConstraint(Sketcher.Constraint("Equal", 2, 3))
sketch16.addConstraint(Sketcher.Constraint("PointOnObject", 2, 1, -1))
sketch16.addConstraint(Sketcher.Constraint("Angle", 0, Q("36 deg")))
sketch16.addConstraint(Sketcher.Constraint("Angle", 1, Q("108 deg")))
sketch16.addConstraint(Sketcher.Constraint("DistanceY", 0, 2, -1, 1, Q("0.75 in")))
pad16 = doc.addObject("PartDesign::Pad", "Pad015")
body16.addObject(pad16)
pad16.Profile = sketch16
pad16.Length = Q("1 in")
body17 = doc.addObject("PartDesign::Body", "Body016")

# Sketch on XZ plane
sketch17 = doc.addObject("Sketcher::SketchObject", "Sketch016")
body17.addObject(sketch17)
sketch17.AttachmentSupport = (doc.getObject("XZ_Plane016"), [""])
sketch17.MapMode = "FlatFace"
sketch17.addGeometry(Part.LineSegment(App.Vector(47, 15, 0), App.Vector(36, 50, 0)), False)
sketch17.addGeometry(Part.LineSegment(App.Vector(36, 50, 0), App.Vector(0, 50, 0)), False)
sketch17.addGeometry(Part.ArcOfCircle(Part.Circle(App.Vector(0, 0, 0), App.Vector(0, 0, 1), 50), math.radians(18), math.radians(90)), False)
sketch17.addConstraint(Sketcher.Constraint("Coincident", 0, 2, 1, 1))
sketch17.addConstraint(Sketcher.Constraint("Tangent", 1, 2, 2, 2))
sketch17.addConstraint(Sketcher.Constraint("Tangent", 2, 1, 0, 1))
sketch17.addConstraint(Sketcher.Constraint("Horizontal", 1))
sketch17.addConstraint(Sketcher.Constraint("Coincident", 2, 3, -1, 1))
sketch17.addConstraint(Sketcher.Constraint("Angle", 0, Q("108 deg")))
sketch17.addConstraint(Sketcher.Constraint("Radius", 2, 49.873547))
pad17 = doc.addObject("PartDesign::Pad", "Pad016")
body17.addObject(pad17)
pad17.Profile = sketch17
pad17.Length = Q("1 in")

doc.recompute()
